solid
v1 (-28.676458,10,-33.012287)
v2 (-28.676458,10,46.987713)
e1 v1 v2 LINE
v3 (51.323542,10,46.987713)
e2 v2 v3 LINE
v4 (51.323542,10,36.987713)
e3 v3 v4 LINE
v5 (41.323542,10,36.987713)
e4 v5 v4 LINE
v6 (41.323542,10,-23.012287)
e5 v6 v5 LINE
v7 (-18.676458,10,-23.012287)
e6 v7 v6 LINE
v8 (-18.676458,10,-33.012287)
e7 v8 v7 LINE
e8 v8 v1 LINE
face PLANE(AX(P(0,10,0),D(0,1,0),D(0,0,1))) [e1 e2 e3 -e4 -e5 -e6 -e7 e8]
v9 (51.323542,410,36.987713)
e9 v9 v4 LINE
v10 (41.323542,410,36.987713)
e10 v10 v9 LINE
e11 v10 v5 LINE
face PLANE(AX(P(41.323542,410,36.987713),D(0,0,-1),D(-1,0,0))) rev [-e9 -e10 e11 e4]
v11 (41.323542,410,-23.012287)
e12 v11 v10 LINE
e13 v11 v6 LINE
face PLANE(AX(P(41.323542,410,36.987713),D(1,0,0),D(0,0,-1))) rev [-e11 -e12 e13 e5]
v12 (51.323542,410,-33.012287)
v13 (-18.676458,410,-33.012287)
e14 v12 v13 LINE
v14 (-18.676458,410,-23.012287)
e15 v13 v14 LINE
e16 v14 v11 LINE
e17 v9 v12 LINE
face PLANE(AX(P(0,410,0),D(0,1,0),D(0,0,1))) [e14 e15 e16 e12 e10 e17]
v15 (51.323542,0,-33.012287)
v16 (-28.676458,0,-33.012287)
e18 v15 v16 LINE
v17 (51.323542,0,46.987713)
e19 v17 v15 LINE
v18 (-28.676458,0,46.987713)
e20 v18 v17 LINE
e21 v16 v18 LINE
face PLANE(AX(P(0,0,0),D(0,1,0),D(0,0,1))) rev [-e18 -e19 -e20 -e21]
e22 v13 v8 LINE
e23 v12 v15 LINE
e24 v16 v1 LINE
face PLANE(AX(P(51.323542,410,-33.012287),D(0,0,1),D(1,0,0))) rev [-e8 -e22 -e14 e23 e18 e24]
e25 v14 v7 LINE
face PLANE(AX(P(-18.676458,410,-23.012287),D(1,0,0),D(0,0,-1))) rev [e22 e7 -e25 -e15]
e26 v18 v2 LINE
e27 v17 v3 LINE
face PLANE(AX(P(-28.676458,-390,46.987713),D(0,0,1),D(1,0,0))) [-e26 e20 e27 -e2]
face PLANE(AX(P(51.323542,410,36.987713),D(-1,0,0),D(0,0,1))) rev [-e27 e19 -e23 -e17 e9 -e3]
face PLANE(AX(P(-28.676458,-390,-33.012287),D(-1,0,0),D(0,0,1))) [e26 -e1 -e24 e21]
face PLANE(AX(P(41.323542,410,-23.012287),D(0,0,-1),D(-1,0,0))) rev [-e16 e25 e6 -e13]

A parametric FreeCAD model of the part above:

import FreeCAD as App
import Part
import Sketcher
Q = App.Units.Quantity

doc = App.newDocument("Part")
body = doc.addObject("PartDesign::Body", "Body")

# Sketch on XZ plane
sketch1 = body.newObject("Sketcher::SketchObject", "Sketch")
sketch1.AttachmentSupport = (doc.getObject("XZ_Plane"), [""])
sketch1.MapMode = "FlatFace"
sketch1.addGeometry([
    Part.LineSegment(App.Vector(-38.676458, -43.012287, 0), App.Vector(-38.676458, 56.987713, 0)),
    Part.LineSegment(App.Vector(-38.676458, 56.987713, 0), App.Vector(61.323542, 56.987713, 0)),
    Part.LineSegment(App.Vector(61.323542, 56.987713, 0), App.Vector(61.323542, -43.012287, 0)),
    Part.LineSegment(App.Vector(61.323542, -43.012287, 0), App.Vector(-38.676458, -43.012287, 0)),
], False)
sketch1.addConstraint([
    Sketcher.Constraint("Coincident", 0, 2, 1, 1),
    Sketcher.Constraint("Coincident", 1, 2, 2, 1),
    Sketcher.Constraint("Coincident", 2, 2, 3, 1),
    Sketcher.Constraint("Coincident", 3, 2, 0, 1),
    Sketcher.Constraint("Vertical", 0),
    Sketcher.Constraint("Horizontal", 1),
    Sketcher.Constraint("Vertical", 2),
    Sketcher.Constraint("Horizontal", 3),
    Sketcher.Constraint("Equal", 3, 0),
    Sketcher.Constraint("DistanceX", 1, 1, 1, 2, Q("100 mm")),
    Sketcher.Constraint("DistanceX", 0, 2, -1, 1, Q("38.676458 mm")),
    Sketcher.Constraint("DistanceY", -1, 1, 0, 2, Q("56.987713 mm")),
])
pad1 = body.newObject("PartDesign::Pad", "Pad")
pad1.Profile = sketch1
pad1.Length = 10
pad1.Reversed = True

# Sketch on XZ plane
sketch2 = body.newObject("Sketcher::SketchObject", "Sketch001")
sketch2.AttachmentSupport = (doc.getObject("XZ_Plane"), [""])
sketch2.MapMode = "FlatFace"
sketch2.AttachmentOffset = App.Placement(App.Vector(0, 0, -10), App.Rotation())
sketch2.addGeometry([
    Part.LineSegment(App.Vector(51.323542, -33.012287, 0), App.Vector(-18.676458, -33.012287, 0)),  # 0
    Part.LineSegment(App.Vector(-18.676458, -33.012287, 0), App.Vector(-18.676458, -23.012287, 0)),  # 1
    Part.LineSegment(App.Vector(-18.676458, -23.012287, 0), App.Vector(41.323542, -23.012287, 0)),  # 2
    Part.LineSegment(App.Vector(41.323542, -23.012287, 0), App.Vector(41.323542, 36.987713, 0)),  # 3
    Part.LineSegment(App.Vector(41.323542, 36.987713, 0), App.Vector(51.323542, 36.987713, 0)),  # 4
    Part.LineSegment(App.Vector(51.323542, 36.987713, 0), App.Vector(51.323542, -33.012287, 0)),  # 5
], False)
sketch2.addConstraint([
    Sketcher.Constraint("Coincident", 0, 2, 1, 1),
    Sketcher.Constraint("Coincident", 1, 2, 2, 1),
    Sketcher.Constraint("Coincident", 2, 2, 3, 1),
    Sketcher.Constraint("Coincident", 3, 2, 4, 1),
    Sketcher.Constraint("Coincident", 4, 2, 5, 1),
    Sketcher.Constraint("Coincident", 5, 2, 0, 1),
    Sketcher.Constraint("Horizontal", 0),
    Sketcher.Constraint("Vertical", 1),
    Sketcher.Constraint("Horizontal", 2),
    Sketcher.Constraint("Vertical", 3),
    Sketcher.Constraint("Horizontal", 4),
    Sketcher.Constraint("Vertical", 5),
    Sketcher.Constraint("Equal", 4, 1),
    Sketcher.Constraint("Equal", 2, 3),
    Sketcher.Constraint("DistanceX", 0, 2, 0, 1, Q("70 mm")),
    Sketcher.Constraint("DistanceX", 2, 1, 2, 2, Q("60 mm")),
    Sketcher.Constraint("DistanceX", 0, 2, -1, 1, Q("18.676458 mm")),
    Sketcher.Constraint("DistanceY", 0, 2, -1, 1, Q("33.012287 mm")),
])
pad2 = body.newObject("PartDesign::Pad", "Pad001")
pad2.Profile = sketch2
pad2.Length = 400
pad2.Reversed = True

# Sketch on XZ plane
sketch3 = body.newObject("Sketcher::SketchObject", "Sketch002")
sketch3.AttachmentSupport = (doc.getObject("XZ_Plane"), [""])
sketch3.MapMode = "FlatFace"
sketch3.AttachmentOffset = App.Placement(App.Vector(0, 0, -10), App.Rotation())
sketch3.addGeometry([
    Part.LineSegment(App.Vector(-83.046, -87.382, 0), App.Vector(-83.046, 101.358, 0)),  # 0
    Part.LineSegment(App.Vector(-83.046, 101.358, 0), App.Vector(105.694, 101.358, 0)),  # 1
    Part.LineSegment(App.Vector(105.694, 101.358, 0), App.Vector(105.694, -87.382, 0)),  # 2
    Part.LineSegment(App.Vector(105.694, -87.382, 0), App.Vector(-83.046, -87.382, 0)),  # 3
    Part.LineSegment(App.Vector(51.323542, 46.987713, 0), App.Vector(-28.676458, 46.987713, 0)),  # 4
    Part.LineSegment(App.Vector(-28.676458, 46.987713, 0), App.Vector(-28.676458, -33.012287, 0)),  # 5
    Part.LineSegment(App.Vector(-28.676458, -33.012287, 0), App.Vector(51.323542, -33.012287, 0)),  # 6
    Part.LineSegment(App.Vector(51.323542, -33.012287, 0), App.Vector(51.323542, 46.987713, 0)),  # 7
], False)
sketch3.addConstraint([
    Sketcher.Constraint("Coincident", 0, 2, 1, 1),
    Sketcher.Constraint("Coincident", 1, 2, 2, 1),
    Sketcher.Constraint("Coincident", 2, 2, 3, 1),
    Sketcher.Constraint("Coincident", 3, 2, 0, 1),
    Sketcher.Constraint("Coincident", 4, 2, 5, 1),
    Sketcher.Constraint("Coincident", 5, 2, 6, 1),
    Sketcher.Constraint("Coincident", 6, 2, 7, 1),
    Sketcher.Constraint("Coincident", 7, 2, 4, 1),
    Sketcher.Constraint("Vertical", 0),
    Sketcher.Constraint("Horizontal", 1),
    Sketcher.Constraint("Vertical", 2),
    Sketcher.Constraint("Horizontal", 3),
    Sketcher.Constraint("Horizontal", 4),
    Sketcher.Constraint("Vertical", 5),
    Sketcher.Constraint("Horizontal", 6),
    Sketcher.Constraint("Vertical", 7),
    Sketcher.Constraint("Equal", 3, 0),
    Sketcher.Constraint("Equal", 6, 5),
    Sketcher.Constraint("DistanceX", 4, 2, 4, 1, Q("80 mm")),
    Sketcher.Constraint("DistanceX", 1, 1, 1, 2, Q("188.74 mm")),
    Sketcher.Constraint("DistanceX", 0, 2, -1, 1, Q("83.046 mm")),
    Sketcher.Constraint("DistanceY", -1, 1, 0, 2, Q("101.358 mm")),
    Sketcher.Constraint("DistanceX", 4, 2, -1, 1, Q("28.676458 mm")),
    Sketcher.Constraint("DistanceY", -1, 1, 4, 2, Q("46.987713 mm")),
])
pocket1 = body.newObject("PartDesign::Pocket", "Pocket")
pocket1.Profile = sketch3
pocket1.Length = 400
pocket1.Reversed = True

doc.recompute()
